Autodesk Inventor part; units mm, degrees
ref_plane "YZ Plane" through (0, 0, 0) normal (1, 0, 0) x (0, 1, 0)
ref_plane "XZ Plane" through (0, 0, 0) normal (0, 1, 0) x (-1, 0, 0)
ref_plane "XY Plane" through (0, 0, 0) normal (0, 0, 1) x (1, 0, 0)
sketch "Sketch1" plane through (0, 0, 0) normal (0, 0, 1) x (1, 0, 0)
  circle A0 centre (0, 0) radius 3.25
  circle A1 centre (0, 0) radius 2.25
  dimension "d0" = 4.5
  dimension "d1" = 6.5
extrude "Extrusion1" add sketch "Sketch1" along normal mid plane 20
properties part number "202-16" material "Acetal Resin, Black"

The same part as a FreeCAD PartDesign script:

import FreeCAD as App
import Part
import Sketcher

doc = App.newDocument("Part")
params = doc.addObject("Spreadsheet::Sheet", "Params")
for row, (alias, value) in enumerate([
    ("sketch1_diameter", "6.5 mm"),
    ("sketch1_diameter2", "4.5 mm"),
    ("pad1_length", "20 mm"),
], start=1):
    params.set(f"A{row}", alias)
    params.set(f"B{row}", "=" + value)
    params.setAlias(f"B{row}", alias)

body = doc.addObject("PartDesign::Body", "Body")

# Sketch on XY plane
sketch1 = doc.addObject("Sketcher::SketchObject", "Sketch")
body.addObject(sketch1)
sketch1.AttachmentSupport = (doc.XY_Plane, [""])
sketch1.MapMode = "FlatFace"
sketch1.addGeometry([
    Part.Circle(App.Vector(0, 0, 0), App.Vector(0, 0, 1), 3.25),
    Part.Circle(App.Vector(0, 0, 0), App.Vector(0, 0, 1), 2.25),
], False)
sketch1.addConstraint([
    Sketcher.Constraint("Coincident", 0, 3, -1, 1),
    Sketcher.Constraint("Coincident", 1, 3, -1, 1),
    Sketcher.Constraint("Diameter", 0, 6.5),
    Sketcher.Constraint("Diameter", 1, 4.5),
])
sketch1.setExpression("Constraints[2]", "Params.sketch1_diameter")
sketch1.setExpression("Constraints[3]", "Params.sketch1_diameter2")
pad1 = doc.addObject("PartDesign::Pad", "Pad")
body.addObject(pad1)
pad1.Profile = sketch1
pad1.setExpression("Length", "Params.pad1_length")
pad1.Midplane = True

doc.recompute()
